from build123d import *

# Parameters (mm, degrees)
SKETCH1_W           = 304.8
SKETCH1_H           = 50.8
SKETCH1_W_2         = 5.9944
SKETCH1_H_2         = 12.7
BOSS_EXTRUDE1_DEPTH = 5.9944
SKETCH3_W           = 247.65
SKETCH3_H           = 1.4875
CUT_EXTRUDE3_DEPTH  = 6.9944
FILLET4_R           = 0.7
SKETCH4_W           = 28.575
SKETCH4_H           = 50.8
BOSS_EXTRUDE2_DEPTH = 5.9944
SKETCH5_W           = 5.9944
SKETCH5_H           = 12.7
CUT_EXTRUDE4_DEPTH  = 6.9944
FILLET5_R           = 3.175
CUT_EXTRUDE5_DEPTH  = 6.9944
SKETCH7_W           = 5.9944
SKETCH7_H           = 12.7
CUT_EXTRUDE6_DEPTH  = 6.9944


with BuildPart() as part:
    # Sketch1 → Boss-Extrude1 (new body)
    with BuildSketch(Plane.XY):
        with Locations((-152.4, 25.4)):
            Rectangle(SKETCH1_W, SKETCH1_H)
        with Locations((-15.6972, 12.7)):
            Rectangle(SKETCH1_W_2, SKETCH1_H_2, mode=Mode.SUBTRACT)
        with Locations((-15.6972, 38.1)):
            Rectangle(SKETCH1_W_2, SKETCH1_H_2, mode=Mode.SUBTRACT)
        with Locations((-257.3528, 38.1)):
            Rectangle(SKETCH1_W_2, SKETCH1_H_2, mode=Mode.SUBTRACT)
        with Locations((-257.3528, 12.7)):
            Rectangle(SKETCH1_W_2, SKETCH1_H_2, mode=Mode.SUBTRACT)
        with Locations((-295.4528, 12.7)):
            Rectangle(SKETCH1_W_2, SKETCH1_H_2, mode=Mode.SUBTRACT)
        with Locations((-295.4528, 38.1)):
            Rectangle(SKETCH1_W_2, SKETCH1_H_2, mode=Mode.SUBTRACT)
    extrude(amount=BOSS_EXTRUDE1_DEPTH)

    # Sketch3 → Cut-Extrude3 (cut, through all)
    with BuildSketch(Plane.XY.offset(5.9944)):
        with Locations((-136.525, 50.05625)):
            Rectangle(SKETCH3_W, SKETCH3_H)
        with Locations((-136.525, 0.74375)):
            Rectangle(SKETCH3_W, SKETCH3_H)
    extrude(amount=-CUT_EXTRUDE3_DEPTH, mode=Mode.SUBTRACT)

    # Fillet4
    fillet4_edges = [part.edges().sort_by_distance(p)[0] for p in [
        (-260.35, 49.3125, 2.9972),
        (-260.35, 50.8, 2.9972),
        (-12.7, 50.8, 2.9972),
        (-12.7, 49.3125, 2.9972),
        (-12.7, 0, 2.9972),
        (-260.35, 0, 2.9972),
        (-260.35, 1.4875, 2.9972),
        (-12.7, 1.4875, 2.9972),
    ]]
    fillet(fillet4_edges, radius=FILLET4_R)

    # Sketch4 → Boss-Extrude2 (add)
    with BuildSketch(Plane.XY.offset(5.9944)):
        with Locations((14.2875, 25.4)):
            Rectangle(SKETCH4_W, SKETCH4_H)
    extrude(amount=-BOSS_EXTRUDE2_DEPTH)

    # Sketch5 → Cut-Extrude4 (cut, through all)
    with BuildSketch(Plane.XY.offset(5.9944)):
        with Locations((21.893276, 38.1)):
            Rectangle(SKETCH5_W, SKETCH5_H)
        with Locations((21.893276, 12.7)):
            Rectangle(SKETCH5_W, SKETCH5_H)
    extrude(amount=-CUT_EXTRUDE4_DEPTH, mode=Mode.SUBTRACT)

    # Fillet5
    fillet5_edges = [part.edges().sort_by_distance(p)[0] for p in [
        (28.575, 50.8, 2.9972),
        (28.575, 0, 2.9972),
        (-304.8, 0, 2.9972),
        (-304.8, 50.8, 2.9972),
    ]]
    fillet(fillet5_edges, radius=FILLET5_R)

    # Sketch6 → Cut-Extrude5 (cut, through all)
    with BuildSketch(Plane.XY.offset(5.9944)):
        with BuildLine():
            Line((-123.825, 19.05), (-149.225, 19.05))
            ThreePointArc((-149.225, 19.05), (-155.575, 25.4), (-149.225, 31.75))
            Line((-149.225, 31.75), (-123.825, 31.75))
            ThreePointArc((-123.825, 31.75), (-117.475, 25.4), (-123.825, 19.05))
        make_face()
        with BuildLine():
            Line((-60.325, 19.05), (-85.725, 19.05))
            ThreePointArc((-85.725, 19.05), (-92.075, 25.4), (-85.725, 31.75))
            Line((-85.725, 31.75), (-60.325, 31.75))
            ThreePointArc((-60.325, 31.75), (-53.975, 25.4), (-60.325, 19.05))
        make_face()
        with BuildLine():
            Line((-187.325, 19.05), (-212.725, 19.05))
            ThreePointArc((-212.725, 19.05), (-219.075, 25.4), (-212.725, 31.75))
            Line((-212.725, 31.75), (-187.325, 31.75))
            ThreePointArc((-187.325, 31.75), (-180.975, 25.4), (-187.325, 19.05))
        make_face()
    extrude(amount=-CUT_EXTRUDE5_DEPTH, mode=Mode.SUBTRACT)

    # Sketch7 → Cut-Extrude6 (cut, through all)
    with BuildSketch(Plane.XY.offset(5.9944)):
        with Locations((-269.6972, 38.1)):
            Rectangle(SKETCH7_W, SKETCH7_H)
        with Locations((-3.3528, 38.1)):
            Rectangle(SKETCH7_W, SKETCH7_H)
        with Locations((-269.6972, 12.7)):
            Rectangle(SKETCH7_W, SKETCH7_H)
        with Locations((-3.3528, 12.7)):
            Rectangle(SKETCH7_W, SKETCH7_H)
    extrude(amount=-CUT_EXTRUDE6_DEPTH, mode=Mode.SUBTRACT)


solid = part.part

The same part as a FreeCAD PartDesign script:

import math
import FreeCAD as App
import Part
import Sketcher

V = App.Vector
Q = App.Units.Quantity


def edges_at(feature, points):
    """Names of the edges that pass closest to the given points."""
    edges = feature.Shape.Edges
    near = lambda p: min(range(len(edges)), key=lambda i: edges[i].distToShape(Part.Vertex(*p))[0])
    return sorted({f"Edge{near(p) + 1}" for p in points})


def add_polygon(sketch, points):
    """Adds a closed chain of lines whose ends are joined by coincident constraints."""
    first, n = sketch.GeometryCount, len(points)
    for a, b in zip(points, points[1:] + points[:1]):
        sketch.addGeometry(Part.LineSegment(App.Vector(*a, 0), App.Vector(*b, 0)), False)
    for i in range(n):
        sketch.addConstraint(Sketcher.Constraint("Coincident", first + i, 2, first + (i + 1) % n, 1))

doc = App.newDocument("Part")
params = doc.addObject("Spreadsheet::Sheet", "Params")
for row, (alias, value) in enumerate([
    ("sketch1_width", "12 in"),
    ("sketch1_height", "2 in"),
    ("sketch1_height2", "0.5 in"),
    ("sketch1_width2", "0.236 in"),
    ("pad1_length", "0.236 in"),
    ("sketch2_width", "9.75 in"),
    ("fillet_radius", "0.7 mm"),
    ("sketch3_height", "2 in"),
    ("sketch3_width", "1.125 in"),
    ("pad2_length", "0.236 in"),
    ("sketch4_height", "0.5 in"),
    ("sketch4_width", "0.236 in"),
    ("fillet2_radius", "0.125 in"),
    ("sketch5_width", "1 in"),
    ("sketch5_radius", "0.25 in"),
    ("sketch6_height", "0.5 in"),
    ("sketch6_width", "0.236 in"),
], start=1):
    params.set(f"A{row}", alias)
    params.set(f"B{row}", "=" + value)
    params.setAlias(f"B{row}", alias)

body = doc.addObject("PartDesign::Body", "Body")

# Sketch on XY plane
sketch1 = body.newObject("Sketcher::SketchObject", "Sketch")
sketch1.AttachmentSupport = (doc.getObject("XY_Plane"), [""])
sketch1.MapMode = "FlatFace"
add_polygon(sketch1, [(-304.8, 50.8), (-304.8, 0), (0, 0), (0, 50.8)])  # lines 0-3
add_polygon(sketch1, [(-292.4556, 6.35), (-298.45, 6.35), (-298.45, 19.05), (-292.4556, 19.05)])  # lines 4-7
add_polygon(sketch1, [(-254.3556, 6.35), (-260.35, 6.35), (-260.35, 19.05), (-254.3556, 19.05)])  # lines 8-11
add_polygon(sketch1, [(-12.7, 6.35), (-18.6944, 6.35), (-18.6944, 19.05), (-12.7, 19.05)])  # lines 12-15
add_polygon(sketch1, [(-292.4556, 31.75), (-298.45, 31.75), (-298.45, 44.45), (-292.4556, 44.45)])  # lines 16-19
add_polygon(sketch1, [(-254.3556, 31.75), (-260.35, 31.75), (-260.35, 44.45), (-254.3556, 44.45)])  # lines 20-23
add_polygon(sketch1, [(-12.7, 31.75), (-18.6944, 31.75), (-18.6944, 44.45), (-12.7, 44.45)])  # lines 24-27
sketch1.addConstraint(Sketcher.Constraint("Vertical", 0))
sketch1.addConstraint(Sketcher.Constraint("Horizontal", 1))
sketch1.addConstraint(Sketcher.Constraint("Vertical", 2))
sketch1.addConstraint(Sketcher.Constraint("Horizontal", 3))
sketch1.addConstraint(Sketcher.Constraint("Horizontal", 4))
sketch1.addConstraint(Sketcher.Constraint("Vertical", 5))
sketch1.addConstraint(Sketcher.Constraint("Horizontal", 6))
sketch1.addConstraint(Sketcher.Constraint("Vertical", 7))
sketch1.addConstraint(Sketcher.Constraint("Horizontal", 8))
sketch1.addConstraint(Sketcher.Constraint("Vertical", 9))
sketch1.addConstraint(Sketcher.Constraint("Horizontal", 10))
sketch1.addConstraint(Sketcher.Constraint("Vertical", 11))
sketch1.addConstraint(Sketcher.Constraint("Horizontal", 12))
sketch1.addConstraint(Sketcher.Constraint("Vertical", 13))
sketch1.addConstraint(Sketcher.Constraint("Horizontal", 14))
sketch1.addConstraint(Sketcher.Constraint("Vertical", 15))
sketch1.addConstraint(Sketcher.Constraint("Horizontal", 16))
sketch1.addConstraint(Sketcher.Constraint("Vertical", 17))
sketch1.addConstraint(Sketcher.Constraint("Horizontal", 18))
sketch1.addConstraint(Sketcher.Constraint("Vertical", 19))
sketch1.addConstraint(Sketcher.Constraint("Horizontal", 20))
sketch1.addConstraint(Sketcher.Constraint("Vertical", 21))
sketch1.addConstraint(Sketcher.Constraint("Horizontal", 22))
sketch1.addConstraint(Sketcher.Constraint("Vertical", 23))
sketch1.addConstraint(Sketcher.Constraint("Horizontal", 24))
sketch1.addConstraint(Sketcher.Constraint("Vertical", 25))
sketch1.addConstraint(Sketcher.Constraint("Horizontal", 26))
sketch1.addConstraint(Sketcher.Constraint("Vertical", 27))
sketch1.addConstraint(Sketcher.Constraint("Coincident", 1, 2, -1, 1))
sketch1.addConstraint(Sketcher.Constraint("Horizontal", 7, 2, 8, 2))
sketch1.addConstraint(Sketcher.Constraint("Horizontal", 6, 2, 9, 2))
sketch1.addConstraint(Sketcher.Constraint("Horizontal", 11, 2, 12, 2))
sketch1.addConstraint(Sketcher.Constraint("Horizontal", 10, 2, 13, 2))
sketch1.addConstraint(Sketcher.Constraint("Horizontal", 19, 2, 20, 2))
sketch1.addConstraint(Sketcher.Constraint("Horizontal", 18, 2, 21, 2))
sketch1.addConstraint(Sketcher.Constraint("Horizontal", 23, 2, 24, 2))
sketch1.addConstraint(Sketcher.Constraint("Horizontal", 22, 2, 25, 2))
sketch1.addConstraint(Sketcher.Constraint("Vertical", 5, 2, 16, 2))
sketch1.addConstraint(Sketcher.Constraint("Vertical", 7, 2, 18, 2))
sketch1.addConstraint(Sketcher.Constraint("Vertical", 9, 2, 20, 2))
sketch1.addConstraint(Sketcher.Constraint("Vertical", 11, 2, 22, 2))
sketch1.addConstraint(Sketcher.Constraint("Vertical", 13, 2, 24, 2))
sketch1.addConstraint(Sketcher.Constraint("Vertical", 15, 2, 26, 2))
sketch1.addConstraint(Sketcher.Constraint("Equal", 6, 8))
sketch1.addConstraint(Sketcher.Constraint("Equal", 10, 12))
sketch1.addConstraint(Sketcher.Constraint("Equal", 15, 17))
sketch1.addConstraint(Sketcher.Constraint("DistanceX", 1, 1, 1, 2, Q("12 in")))
sketch1.addConstraint(Sketcher.Constraint("DistanceY", 0, 2, 0, 1, Q("2 in")))
sketch1.addConstraint(Sketcher.Constraint("DistanceY", 5, 1, 5, 2, Q("0.5 in")))
sketch1.addConstraint(Sketcher.Constraint("DistanceY", 4, 2, 16, 2, Q("1 in")))
sketch1.addConstraint(Sketcher.Constraint("DistanceX", 14, 2, -1, 1, Q("0.5 in")))
sketch1.addConstraint(Sketcher.Constraint("DistanceX", 4, 2, 8, 2, Q("1.5 in")))
sketch1.addConstraint(Sketcher.Constraint("DistanceX", 4, 2, 4, 1, Q("0.236 in")))
sketch1.addConstraint(Sketcher.Constraint("DistanceX", 4, 2, -1, 1, Q("11.75 in")))
sketch1.addConstraint(Sketcher.Constraint("DistanceY", -1, 1, 4, 2, Q("0.25 in")))
sketch1.setExpression("Constraints[74]", "Params.sketch1_width")
sketch1.setExpression("Constraints[75]", "Params.sketch1_height")
sketch1.setExpression("Constraints[76]", "Params.sketch1_height2")
sketch1.setExpression("Constraints[80]", "Params.sketch1_width2")
pad1 = body.newObject("PartDesign::Pad", "Pad")
pad1.Profile = sketch1
pad1.setExpression("Length", "Params.pad1_length")

# Sketch on XY plane
sketch2 = body.newObject("Sketcher::SketchObject", "Sketch001")
sketch2.AttachmentSupport = (doc.getObject("XY_Plane"), [""])
sketch2.MapMode = "FlatFace"
sketch2.AttachmentOffset = App.Placement(V(0, 0, 0.236 * 25.4), App.Rotation())
add_polygon(sketch2, [(-260.35, 50.8), (-260.35, 49.3125), (-12.7, 49.3125), (-12.7, 50.8)])  # lines 0-3
add_polygon(sketch2, [(-260.35, 1.4875), (-260.35, 0), (-12.7, 0), (-12.7, 1.4875)])  # lines 4-7
sketch2.addConstraint(Sketcher.Constraint("Vertical", 0))
sketch2.addConstraint(Sketcher.Constraint("Horizontal", 1))
sketch2.addConstraint(Sketcher.Constraint("Vertical", 2))
sketch2.addConstraint(Sketcher.Constraint("Horizontal", 3))
sketch2.addConstraint(Sketcher.Constraint("Vertical", 4))
sketch2.addConstraint(Sketcher.Constraint("Horizontal", 5))
sketch2.addConstraint(Sketcher.Constraint("Vertical", 6))
sketch2.addConstraint(Sketcher.Constraint("Horizontal", 7))
sketch2.addConstraint(Sketcher.Constraint("PointOnObject", 4, 2, -1))
sketch2.addConstraint(Sketcher.Constraint("Vertical", 3, 2, 4, 2))
sketch2.addConstraint(Sketcher.Constraint("Vertical", 2, 2, 5, 2))
sketch2.addConstraint(Sketcher.Constraint("Equal", 2, 4))
sketch2.addConstraint(Sketcher.Constraint("DistanceY", -1, 1, 2, 2, Q("2 in")))
sketch2.addConstraint(Sketcher.Constraint("DistanceX", 1, 1, 1, 2, Q("9.75 in")))
sketch2.addConstraint(Sketcher.Constraint("DistanceX", 1, 2, -1, 1, Q("0.5 in")))
sketch2.addConstraint(Sketcher.Constraint("DistanceY", 0, 2, 0, 1, 1.4875))
sketch2.setExpression("Constraints[21]", "Params.sketch2_width")
pocket1 = body.newObject("PartDesign::Pocket", "Pocket")
pocket1.Profile = sketch2
pocket1.Type = "ThroughAll"
doc.recompute()

fillet = body.newObject("PartDesign::Fillet", "Fillet")
fillet.Base = (pocket1, edges_at(pocket1, [
    (-260.35, 49.312, 2.997),
    (-260.35, 50.8, 2.997),
    (-12.7, 50.8, 2.997),
    (-12.7, 49.312, 2.997),
    (-12.7, 0, 2.997),
    (-260.35, 0, 2.997),
    (-260.35, 1.488, 2.997),
    (-12.7, 1.488, 2.997),
]))
fillet.setExpression("Radius", "Params.fillet_radius")

# Sketch on XY plane
sketch3 = body.newObject("Sketcher::SketchObject", "Sketch002")
sketch3.AttachmentSupport = (doc.getObject("XY_Plane"), [""])
sketch3.MapMode = "FlatFace"
sketch3.AttachmentOffset = App.Placement(V(0, 0, 0.236 * 25.4), App.Rotation())
add_polygon(sketch3, [(0, 50.8), (0, 0), (28.575, 0), (28.575, 50.8)])  # lines 0-3
sketch3.addConstraint(Sketcher.Constraint("Vertical", 0))
sketch3.addConstraint(Sketcher.Constraint("Horizontal", 1))
sketch3.addConstraint(Sketcher.Constraint("Vertical", 2))
sketch3.addConstraint(Sketcher.Constraint("Horizontal", 3))
sketch3.addConstraint(Sketcher.Constraint("Coincident", 0, 2, -1, 1))
sketch3.addConstraint(Sketcher.Constraint("DistanceY", 0, 2, 0, 1, Q("2 in")))
sketch3.addConstraint(Sketcher.Constraint("DistanceX", 1, 1, 1, 2, Q("1.125 in")))
sketch3.setExpression("Constraints[9]", "Params.sketch3_height")
sketch3.setExpression("Constraints[10]", "Params.sketch3_width")
pad2 = body.newObject("PartDesign::Pad", "Pad001")
pad2.Profile = sketch3
pad2.setExpression("Length", "Params.pad2_length")
pad2.Reversed = True

# Sketch on XY plane
sketch4 = body.newObject("Sketcher::SketchObject", "Sketch003")
sketch4.AttachmentSupport = (doc.getObject("XY_Plane"), [""])
sketch4.MapMode = "FlatFace"
sketch4.AttachmentOffset = App.Placement(V(0, 0, 0.236 * 25.4), App.Rotation())
add_polygon(sketch4, [(18.896076, 44.45), (18.896076, 31.75), (24.890476, 31.75), (24.890476, 44.45)])  # lines 0-3
add_polygon(sketch4, [(18.896076, 19.05), (18.896076, 6.35), (24.890476, 6.35), (24.890476, 19.05)])  # lines 4-7
sketch4.addConstraint(Sketcher.Constraint("Vertical", 0))
sketch4.addConstraint(Sketcher.Constraint("Horizontal", 1))
sketch4.addConstraint(Sketcher.Constraint("Vertical", 2))
sketch4.addConstraint(Sketcher.Constraint("Horizontal", 3))
sketch4.addConstraint(Sketcher.Constraint("Vertical", 4))
sketch4.addConstraint(Sketcher.Constraint("Horizontal", 5))
sketch4.addConstraint(Sketcher.Constraint("Vertical", 6))
sketch4.addConstraint(Sketcher.Constraint("Horizontal", 7))
sketch4.addConstraint(Sketcher.Constraint("Vertical", 3, 2, 4, 2))
sketch4.addConstraint(Sketcher.Constraint("Vertical", 2, 2, 5, 2))
sketch4.addConstraint(Sketcher.Constraint("Equal", 2, 4))
sketch4.addConstraint(Sketcher.Constraint("DistanceY", 0, 2, 0, 1, Q("0.5 in")))
sketch4.addConstraint(Sketcher.Constraint("DistanceY", 4, 2, 0, 2, Q("1 in")))
sketch4.addConstraint(Sketcher.Constraint("DistanceX", 1, 1, 1, 2, Q("0.236 in")))
sketch4.addConstraint(Sketcher.Constraint("DistanceY", -1, 1, 0, 2, Q("1.25 in")))
sketch4.addConstraint(Sketcher.Constraint("DistanceX", -1, 1, 0, 2, 18.896076))
sketch4.setExpression("Constraints[19]", "Params.sketch4_height")
sketch4.setExpression("Constraints[21]", "Params.sketch4_width")
pocket2 = body.newObject("PartDesign::Pocket", "Pocket001")
pocket2.Profile = sketch4
pocket2.Type = "ThroughAll"
doc.recompute()

fillet2 = body.newObject("PartDesign::Fillet", "Fillet001")
fillet2.Base = (pocket2, edges_at(pocket2, [
    (28.575, 50.8, 2.997),
    (28.575, 0, 2.997),
    (-304.8, 0, 2.997),
    (-304.8, 50.8, 2.997),
]))
fillet2.setExpression("Radius", "Params.fillet2_radius")

# Sketch on XY plane
sketch5 = body.newObject("Sketcher::SketchObject", "Sketch004")
sketch5.AttachmentSupport = (doc.getObject("XY_Plane"), [""])
sketch5.MapMode = "FlatFace"
sketch5.AttachmentOffset = App.Placement(V(0, 0, 0.236 * 25.4), App.Rotation())
sketch5.addGeometry(Part.LineSegment(V(-149.225, 19.05, 0), V(-123.825, 19.05, 0)), False)
sketch5.addGeometry(Part.ArcOfCircle(Part.Circle(V(-123.825, 25.4, 0), V(0, 0, 1), 6.35), math.radians(-90), math.radians(90)), False)
sketch5.addGeometry(Part.LineSegment(V(-123.825, 31.75, 0), V(-149.225, 31.75, 0)), False)
sketch5.addGeometry(Part.ArcOfCircle(Part.Circle(V(-149.225, 25.4, 0), V(0, 0, 1), 6.35), math.radians(90), math.radians(270)), False)
sketch5.addGeometry(Part.LineSegment(V(-85.725, 19.05, 0), V(-60.325, 19.05, 0)), False)
sketch5.addGeometry(Part.ArcOfCircle(Part.Circle(V(-60.325, 25.4, 0), V(0, 0, 1), 6.35), math.radians(-90), math.radians(90)), False)
sketch5.addGeometry(Part.LineSegment(V(-60.325, 31.75, 0), V(-85.725, 31.75, 0)), False)
sketch5.addGeometry(Part.ArcOfCircle(Part.Circle(V(-85.725, 25.4, 0), V(0, 0, 1), 6.35), math.radians(90), math.radians(270)), False)
sketch5.addGeometry(Part.LineSegment(V(-212.725, 19.05, 0), V(-187.325, 19.05, 0)), False)
sketch5.addGeometry(Part.ArcOfCircle(Part.Circle(V(-187.325, 25.4, 0), V(0, 0, 1), 6.35), math.radians(-90), math.radians(90)), False)
sketch5.addGeometry(Part.LineSegment(V(-187.325, 31.75, 0), V(-212.725, 31.75, 0)), False)
sketch5.addGeometry(Part.ArcOfCircle(Part.Circle(V(-212.725, 25.4, 0), V(0, 0, 1), 6.35), math.radians(90), math.radians(270)), False)
sketch5.addConstraint(Sketcher.Constraint("Tangent", 0, 2, 1, 1))
sketch5.addConstraint(Sketcher.Constraint("Tangent", 1, 2, 2, 1))
sketch5.addConstraint(Sketcher.Constraint("Tangent", 2, 2, 3, 1))
sketch5.addConstraint(Sketcher.Constraint("Tangent", 3, 2, 0, 1))
sketch5.addConstraint(Sketcher.Constraint("Tangent", 4, 2, 5, 1))
sketch5.addConstraint(Sketcher.Constraint("Tangent", 5, 2, 6, 1))
sketch5.addConstraint(Sketcher.Constraint("Tangent", 6, 2, 7, 1))
sketch5.addConstraint(Sketcher.Constraint("Tangent", 7, 2, 4, 1))
sketch5.addConstraint(Sketcher.Constraint("Tangent", 8, 2, 9, 1))
sketch5.addConstraint(Sketcher.Constraint("Tangent", 9, 2, 10, 1))
sketch5.addConstraint(Sketcher.Constraint("Tangent", 10, 2, 11, 1))
sketch5.addConstraint(Sketcher.Constraint("Tangent", 11, 2, 8, 1))
sketch5.addConstraint(Sketcher.Constraint("Horizontal", 0))
sketch5.addConstraint(Sketcher.Constraint("Horizontal", 2))
sketch5.addConstraint(Sketcher.Constraint("Horizontal", 4))
sketch5.addConstraint(Sketcher.Constraint("Horizontal", 6))
sketch5.addConstraint(Sketcher.Constraint("Horizontal", 8))
sketch5.addConstraint(Sketcher.Constraint("Horizontal", 10))
sketch5.addConstraint(Sketcher.Constraint("Equal", 3, 5))
sketch5.addConstraint(Sketcher.Constraint("Equal", 7, 9))
sketch5.addConstraint(Sketcher.Constraint("Horizontal", 3, 3, 5, 3))
sketch5.addConstraint(Sketcher.Constraint("Horizontal", 7, 3, 9, 3))
sketch5.addConstraint(Sketcher.Constraint("Equal", 2, 4))
sketch5.addConstraint(Sketcher.Constraint("Equal", 6, 8))
sketch5.addConstraint(Sketcher.Constraint("DistanceX", 0, 1, 0, 2, Q("1 in")))
sketch5.addConstraint(Sketcher.Constraint("Radius", 1, Q("0.25 in")))
sketch5.addConstraint(Sketcher.Constraint("DistanceY", -1, 1, 1, 3, Q("1 in")))
sketch5.addConstraint(Sketcher.Constraint("DistanceX", 9, 3, 7, 3, Q("4 in")))
sketch5.addConstraint(Sketcher.Constraint("DistanceX", 1, 3, 5, 3, Q("2.5 in")))
sketch5.addConstraint(Sketcher.Constraint("DistanceX", 1, 3, -1, 1, Q("4.875 in")))
sketch5.setExpression("Constraints[24]", "Params.sketch5_width")
sketch5.setExpression("Constraints[25]", "Params.sketch5_radius")
pocket3 = body.newObject("PartDesign::Pocket", "Pocket002")
pocket3.Profile = sketch5
pocket3.Type = "ThroughAll"

# Sketch on XY plane
sketch6 = body.newObject("Sketcher::SketchObject", "Sketch005")
sketch6.AttachmentSupport = (doc.getObject("XY_Plane"), [""])
sketch6.MapMode = "FlatFace"
sketch6.AttachmentOffset = App.Placement(V(0, 0, 0.236 * 25.4), App.Rotation())
add_polygon(sketch6, [(-272.6944, 44.45), (-272.6944, 31.75), (-266.7, 31.75), (-266.7, 44.45)])  # lines 0-3
add_polygon(sketch6, [(-6.35, 44.45), (-6.35, 31.75), (-0.3556, 31.75), (-0.3556, 44.45)])  # lines 4-7
add_polygon(sketch6, [(-272.6944, 19.05), (-272.6944, 6.35), (-266.7, 6.35), (-266.7, 19.05)])  # lines 8-11
add_polygon(sketch6, [(-6.35, 19.05), (-6.35, 6.35), (-0.3556, 6.35), (-0.3556, 19.05)])  # lines 12-15
sketch6.addConstraint(Sketcher.Constraint("Vertical", 0))
sketch6.addConstraint(Sketcher.Constraint("Horizontal", 1))
sketch6.addConstraint(Sketcher.Constraint("Vertical", 2))
sketch6.addConstraint(Sketcher.Constraint("Horizontal", 3))
sketch6.addConstraint(Sketcher.Constraint("Vertical", 4))
sketch6.addConstraint(Sketcher.Constraint("Horizontal", 5))
sketch6.addConstraint(Sketcher.Constraint("Vertical", 6))
sketch6.addConstraint(Sketcher.Constraint("Horizontal", 7))
sketch6.addConstraint(Sketcher.Constraint("Vertical", 8))
sketch6.addConstraint(Sketcher.Constraint("Horizontal", 9))
sketch6.addConstraint(Sketcher.Constraint("Vertical", 10))
sketch6.addConstraint(Sketcher.Constraint("Horizontal", 11))
sketch6.addConstraint(Sketcher.Constraint("Vertical", 12))
sketch6.addConstraint(Sketcher.Constraint("Horizontal", 13))
sketch6.addConstraint(Sketcher.Constraint("Vertical", 14))
sketch6.addConstraint(Sketcher.Constraint("Horizontal", 15))
sketch6.addConstraint(Sketcher.Constraint("Horizontal", 1, 2, 4, 2))
sketch6.addConstraint(Sketcher.Constraint("Horizontal", 3, 2, 6, 2))
sketch6.addConstraint(Sketcher.Constraint("Horizontal", 9, 2, 12, 2))
sketch6.addConstraint(Sketcher.Constraint("Horizontal", 11, 2, 14, 2))
sketch6.addConstraint(Sketcher.Constraint("Vertical", 3, 2, 8, 2))
sketch6.addConstraint(Sketcher.Constraint("Vertical", 2, 2, 9, 2))
sketch6.addConstraint(Sketcher.Constraint("Vertical", 7, 2, 12, 2))
sketch6.addConstraint(Sketcher.Constraint("Vertical", 6, 2, 13, 2))
sketch6.addConstraint(Sketcher.Constraint("Equal", 3, 5))
sketch6.addConstraint(Sketcher.Constraint("Equal", 6, 8))
sketch6.addConstraint(Sketcher.Constraint("DistanceY", 0, 2, 0, 1, Q("0.5 in")))
sketch6.addConstraint(Sketcher.Constraint("DistanceY", 8, 2, 0, 2, Q("1 in")))
sketch6.addConstraint(Sketcher.Constraint("DistanceX", 1, 2, -1, 1, Q("10.5 in")))
sketch6.addConstraint(Sketcher.Constraint("DistanceX", 1, 1, 1, 2, Q("0.236 in")))
sketch6.addConstraint(Sketcher.Constraint("DistanceY", -1, 1, 0, 2, Q("1.25 in")))
sketch6.addConstraint(Sketcher.Constraint("DistanceX", 4, 2, -1, 1, Q("0.25 in")))
sketch6.setExpression("Constraints[42]", "Params.sketch6_height")
sketch6.setExpression("Constraints[45]", "Params.sketch6_width")
pocket4 = body.newObject("PartDesign::Pocket", "Pocket003")
pocket4.Profile = sketch6
pocket4.Type = "ThroughAll"

doc.recompute()
